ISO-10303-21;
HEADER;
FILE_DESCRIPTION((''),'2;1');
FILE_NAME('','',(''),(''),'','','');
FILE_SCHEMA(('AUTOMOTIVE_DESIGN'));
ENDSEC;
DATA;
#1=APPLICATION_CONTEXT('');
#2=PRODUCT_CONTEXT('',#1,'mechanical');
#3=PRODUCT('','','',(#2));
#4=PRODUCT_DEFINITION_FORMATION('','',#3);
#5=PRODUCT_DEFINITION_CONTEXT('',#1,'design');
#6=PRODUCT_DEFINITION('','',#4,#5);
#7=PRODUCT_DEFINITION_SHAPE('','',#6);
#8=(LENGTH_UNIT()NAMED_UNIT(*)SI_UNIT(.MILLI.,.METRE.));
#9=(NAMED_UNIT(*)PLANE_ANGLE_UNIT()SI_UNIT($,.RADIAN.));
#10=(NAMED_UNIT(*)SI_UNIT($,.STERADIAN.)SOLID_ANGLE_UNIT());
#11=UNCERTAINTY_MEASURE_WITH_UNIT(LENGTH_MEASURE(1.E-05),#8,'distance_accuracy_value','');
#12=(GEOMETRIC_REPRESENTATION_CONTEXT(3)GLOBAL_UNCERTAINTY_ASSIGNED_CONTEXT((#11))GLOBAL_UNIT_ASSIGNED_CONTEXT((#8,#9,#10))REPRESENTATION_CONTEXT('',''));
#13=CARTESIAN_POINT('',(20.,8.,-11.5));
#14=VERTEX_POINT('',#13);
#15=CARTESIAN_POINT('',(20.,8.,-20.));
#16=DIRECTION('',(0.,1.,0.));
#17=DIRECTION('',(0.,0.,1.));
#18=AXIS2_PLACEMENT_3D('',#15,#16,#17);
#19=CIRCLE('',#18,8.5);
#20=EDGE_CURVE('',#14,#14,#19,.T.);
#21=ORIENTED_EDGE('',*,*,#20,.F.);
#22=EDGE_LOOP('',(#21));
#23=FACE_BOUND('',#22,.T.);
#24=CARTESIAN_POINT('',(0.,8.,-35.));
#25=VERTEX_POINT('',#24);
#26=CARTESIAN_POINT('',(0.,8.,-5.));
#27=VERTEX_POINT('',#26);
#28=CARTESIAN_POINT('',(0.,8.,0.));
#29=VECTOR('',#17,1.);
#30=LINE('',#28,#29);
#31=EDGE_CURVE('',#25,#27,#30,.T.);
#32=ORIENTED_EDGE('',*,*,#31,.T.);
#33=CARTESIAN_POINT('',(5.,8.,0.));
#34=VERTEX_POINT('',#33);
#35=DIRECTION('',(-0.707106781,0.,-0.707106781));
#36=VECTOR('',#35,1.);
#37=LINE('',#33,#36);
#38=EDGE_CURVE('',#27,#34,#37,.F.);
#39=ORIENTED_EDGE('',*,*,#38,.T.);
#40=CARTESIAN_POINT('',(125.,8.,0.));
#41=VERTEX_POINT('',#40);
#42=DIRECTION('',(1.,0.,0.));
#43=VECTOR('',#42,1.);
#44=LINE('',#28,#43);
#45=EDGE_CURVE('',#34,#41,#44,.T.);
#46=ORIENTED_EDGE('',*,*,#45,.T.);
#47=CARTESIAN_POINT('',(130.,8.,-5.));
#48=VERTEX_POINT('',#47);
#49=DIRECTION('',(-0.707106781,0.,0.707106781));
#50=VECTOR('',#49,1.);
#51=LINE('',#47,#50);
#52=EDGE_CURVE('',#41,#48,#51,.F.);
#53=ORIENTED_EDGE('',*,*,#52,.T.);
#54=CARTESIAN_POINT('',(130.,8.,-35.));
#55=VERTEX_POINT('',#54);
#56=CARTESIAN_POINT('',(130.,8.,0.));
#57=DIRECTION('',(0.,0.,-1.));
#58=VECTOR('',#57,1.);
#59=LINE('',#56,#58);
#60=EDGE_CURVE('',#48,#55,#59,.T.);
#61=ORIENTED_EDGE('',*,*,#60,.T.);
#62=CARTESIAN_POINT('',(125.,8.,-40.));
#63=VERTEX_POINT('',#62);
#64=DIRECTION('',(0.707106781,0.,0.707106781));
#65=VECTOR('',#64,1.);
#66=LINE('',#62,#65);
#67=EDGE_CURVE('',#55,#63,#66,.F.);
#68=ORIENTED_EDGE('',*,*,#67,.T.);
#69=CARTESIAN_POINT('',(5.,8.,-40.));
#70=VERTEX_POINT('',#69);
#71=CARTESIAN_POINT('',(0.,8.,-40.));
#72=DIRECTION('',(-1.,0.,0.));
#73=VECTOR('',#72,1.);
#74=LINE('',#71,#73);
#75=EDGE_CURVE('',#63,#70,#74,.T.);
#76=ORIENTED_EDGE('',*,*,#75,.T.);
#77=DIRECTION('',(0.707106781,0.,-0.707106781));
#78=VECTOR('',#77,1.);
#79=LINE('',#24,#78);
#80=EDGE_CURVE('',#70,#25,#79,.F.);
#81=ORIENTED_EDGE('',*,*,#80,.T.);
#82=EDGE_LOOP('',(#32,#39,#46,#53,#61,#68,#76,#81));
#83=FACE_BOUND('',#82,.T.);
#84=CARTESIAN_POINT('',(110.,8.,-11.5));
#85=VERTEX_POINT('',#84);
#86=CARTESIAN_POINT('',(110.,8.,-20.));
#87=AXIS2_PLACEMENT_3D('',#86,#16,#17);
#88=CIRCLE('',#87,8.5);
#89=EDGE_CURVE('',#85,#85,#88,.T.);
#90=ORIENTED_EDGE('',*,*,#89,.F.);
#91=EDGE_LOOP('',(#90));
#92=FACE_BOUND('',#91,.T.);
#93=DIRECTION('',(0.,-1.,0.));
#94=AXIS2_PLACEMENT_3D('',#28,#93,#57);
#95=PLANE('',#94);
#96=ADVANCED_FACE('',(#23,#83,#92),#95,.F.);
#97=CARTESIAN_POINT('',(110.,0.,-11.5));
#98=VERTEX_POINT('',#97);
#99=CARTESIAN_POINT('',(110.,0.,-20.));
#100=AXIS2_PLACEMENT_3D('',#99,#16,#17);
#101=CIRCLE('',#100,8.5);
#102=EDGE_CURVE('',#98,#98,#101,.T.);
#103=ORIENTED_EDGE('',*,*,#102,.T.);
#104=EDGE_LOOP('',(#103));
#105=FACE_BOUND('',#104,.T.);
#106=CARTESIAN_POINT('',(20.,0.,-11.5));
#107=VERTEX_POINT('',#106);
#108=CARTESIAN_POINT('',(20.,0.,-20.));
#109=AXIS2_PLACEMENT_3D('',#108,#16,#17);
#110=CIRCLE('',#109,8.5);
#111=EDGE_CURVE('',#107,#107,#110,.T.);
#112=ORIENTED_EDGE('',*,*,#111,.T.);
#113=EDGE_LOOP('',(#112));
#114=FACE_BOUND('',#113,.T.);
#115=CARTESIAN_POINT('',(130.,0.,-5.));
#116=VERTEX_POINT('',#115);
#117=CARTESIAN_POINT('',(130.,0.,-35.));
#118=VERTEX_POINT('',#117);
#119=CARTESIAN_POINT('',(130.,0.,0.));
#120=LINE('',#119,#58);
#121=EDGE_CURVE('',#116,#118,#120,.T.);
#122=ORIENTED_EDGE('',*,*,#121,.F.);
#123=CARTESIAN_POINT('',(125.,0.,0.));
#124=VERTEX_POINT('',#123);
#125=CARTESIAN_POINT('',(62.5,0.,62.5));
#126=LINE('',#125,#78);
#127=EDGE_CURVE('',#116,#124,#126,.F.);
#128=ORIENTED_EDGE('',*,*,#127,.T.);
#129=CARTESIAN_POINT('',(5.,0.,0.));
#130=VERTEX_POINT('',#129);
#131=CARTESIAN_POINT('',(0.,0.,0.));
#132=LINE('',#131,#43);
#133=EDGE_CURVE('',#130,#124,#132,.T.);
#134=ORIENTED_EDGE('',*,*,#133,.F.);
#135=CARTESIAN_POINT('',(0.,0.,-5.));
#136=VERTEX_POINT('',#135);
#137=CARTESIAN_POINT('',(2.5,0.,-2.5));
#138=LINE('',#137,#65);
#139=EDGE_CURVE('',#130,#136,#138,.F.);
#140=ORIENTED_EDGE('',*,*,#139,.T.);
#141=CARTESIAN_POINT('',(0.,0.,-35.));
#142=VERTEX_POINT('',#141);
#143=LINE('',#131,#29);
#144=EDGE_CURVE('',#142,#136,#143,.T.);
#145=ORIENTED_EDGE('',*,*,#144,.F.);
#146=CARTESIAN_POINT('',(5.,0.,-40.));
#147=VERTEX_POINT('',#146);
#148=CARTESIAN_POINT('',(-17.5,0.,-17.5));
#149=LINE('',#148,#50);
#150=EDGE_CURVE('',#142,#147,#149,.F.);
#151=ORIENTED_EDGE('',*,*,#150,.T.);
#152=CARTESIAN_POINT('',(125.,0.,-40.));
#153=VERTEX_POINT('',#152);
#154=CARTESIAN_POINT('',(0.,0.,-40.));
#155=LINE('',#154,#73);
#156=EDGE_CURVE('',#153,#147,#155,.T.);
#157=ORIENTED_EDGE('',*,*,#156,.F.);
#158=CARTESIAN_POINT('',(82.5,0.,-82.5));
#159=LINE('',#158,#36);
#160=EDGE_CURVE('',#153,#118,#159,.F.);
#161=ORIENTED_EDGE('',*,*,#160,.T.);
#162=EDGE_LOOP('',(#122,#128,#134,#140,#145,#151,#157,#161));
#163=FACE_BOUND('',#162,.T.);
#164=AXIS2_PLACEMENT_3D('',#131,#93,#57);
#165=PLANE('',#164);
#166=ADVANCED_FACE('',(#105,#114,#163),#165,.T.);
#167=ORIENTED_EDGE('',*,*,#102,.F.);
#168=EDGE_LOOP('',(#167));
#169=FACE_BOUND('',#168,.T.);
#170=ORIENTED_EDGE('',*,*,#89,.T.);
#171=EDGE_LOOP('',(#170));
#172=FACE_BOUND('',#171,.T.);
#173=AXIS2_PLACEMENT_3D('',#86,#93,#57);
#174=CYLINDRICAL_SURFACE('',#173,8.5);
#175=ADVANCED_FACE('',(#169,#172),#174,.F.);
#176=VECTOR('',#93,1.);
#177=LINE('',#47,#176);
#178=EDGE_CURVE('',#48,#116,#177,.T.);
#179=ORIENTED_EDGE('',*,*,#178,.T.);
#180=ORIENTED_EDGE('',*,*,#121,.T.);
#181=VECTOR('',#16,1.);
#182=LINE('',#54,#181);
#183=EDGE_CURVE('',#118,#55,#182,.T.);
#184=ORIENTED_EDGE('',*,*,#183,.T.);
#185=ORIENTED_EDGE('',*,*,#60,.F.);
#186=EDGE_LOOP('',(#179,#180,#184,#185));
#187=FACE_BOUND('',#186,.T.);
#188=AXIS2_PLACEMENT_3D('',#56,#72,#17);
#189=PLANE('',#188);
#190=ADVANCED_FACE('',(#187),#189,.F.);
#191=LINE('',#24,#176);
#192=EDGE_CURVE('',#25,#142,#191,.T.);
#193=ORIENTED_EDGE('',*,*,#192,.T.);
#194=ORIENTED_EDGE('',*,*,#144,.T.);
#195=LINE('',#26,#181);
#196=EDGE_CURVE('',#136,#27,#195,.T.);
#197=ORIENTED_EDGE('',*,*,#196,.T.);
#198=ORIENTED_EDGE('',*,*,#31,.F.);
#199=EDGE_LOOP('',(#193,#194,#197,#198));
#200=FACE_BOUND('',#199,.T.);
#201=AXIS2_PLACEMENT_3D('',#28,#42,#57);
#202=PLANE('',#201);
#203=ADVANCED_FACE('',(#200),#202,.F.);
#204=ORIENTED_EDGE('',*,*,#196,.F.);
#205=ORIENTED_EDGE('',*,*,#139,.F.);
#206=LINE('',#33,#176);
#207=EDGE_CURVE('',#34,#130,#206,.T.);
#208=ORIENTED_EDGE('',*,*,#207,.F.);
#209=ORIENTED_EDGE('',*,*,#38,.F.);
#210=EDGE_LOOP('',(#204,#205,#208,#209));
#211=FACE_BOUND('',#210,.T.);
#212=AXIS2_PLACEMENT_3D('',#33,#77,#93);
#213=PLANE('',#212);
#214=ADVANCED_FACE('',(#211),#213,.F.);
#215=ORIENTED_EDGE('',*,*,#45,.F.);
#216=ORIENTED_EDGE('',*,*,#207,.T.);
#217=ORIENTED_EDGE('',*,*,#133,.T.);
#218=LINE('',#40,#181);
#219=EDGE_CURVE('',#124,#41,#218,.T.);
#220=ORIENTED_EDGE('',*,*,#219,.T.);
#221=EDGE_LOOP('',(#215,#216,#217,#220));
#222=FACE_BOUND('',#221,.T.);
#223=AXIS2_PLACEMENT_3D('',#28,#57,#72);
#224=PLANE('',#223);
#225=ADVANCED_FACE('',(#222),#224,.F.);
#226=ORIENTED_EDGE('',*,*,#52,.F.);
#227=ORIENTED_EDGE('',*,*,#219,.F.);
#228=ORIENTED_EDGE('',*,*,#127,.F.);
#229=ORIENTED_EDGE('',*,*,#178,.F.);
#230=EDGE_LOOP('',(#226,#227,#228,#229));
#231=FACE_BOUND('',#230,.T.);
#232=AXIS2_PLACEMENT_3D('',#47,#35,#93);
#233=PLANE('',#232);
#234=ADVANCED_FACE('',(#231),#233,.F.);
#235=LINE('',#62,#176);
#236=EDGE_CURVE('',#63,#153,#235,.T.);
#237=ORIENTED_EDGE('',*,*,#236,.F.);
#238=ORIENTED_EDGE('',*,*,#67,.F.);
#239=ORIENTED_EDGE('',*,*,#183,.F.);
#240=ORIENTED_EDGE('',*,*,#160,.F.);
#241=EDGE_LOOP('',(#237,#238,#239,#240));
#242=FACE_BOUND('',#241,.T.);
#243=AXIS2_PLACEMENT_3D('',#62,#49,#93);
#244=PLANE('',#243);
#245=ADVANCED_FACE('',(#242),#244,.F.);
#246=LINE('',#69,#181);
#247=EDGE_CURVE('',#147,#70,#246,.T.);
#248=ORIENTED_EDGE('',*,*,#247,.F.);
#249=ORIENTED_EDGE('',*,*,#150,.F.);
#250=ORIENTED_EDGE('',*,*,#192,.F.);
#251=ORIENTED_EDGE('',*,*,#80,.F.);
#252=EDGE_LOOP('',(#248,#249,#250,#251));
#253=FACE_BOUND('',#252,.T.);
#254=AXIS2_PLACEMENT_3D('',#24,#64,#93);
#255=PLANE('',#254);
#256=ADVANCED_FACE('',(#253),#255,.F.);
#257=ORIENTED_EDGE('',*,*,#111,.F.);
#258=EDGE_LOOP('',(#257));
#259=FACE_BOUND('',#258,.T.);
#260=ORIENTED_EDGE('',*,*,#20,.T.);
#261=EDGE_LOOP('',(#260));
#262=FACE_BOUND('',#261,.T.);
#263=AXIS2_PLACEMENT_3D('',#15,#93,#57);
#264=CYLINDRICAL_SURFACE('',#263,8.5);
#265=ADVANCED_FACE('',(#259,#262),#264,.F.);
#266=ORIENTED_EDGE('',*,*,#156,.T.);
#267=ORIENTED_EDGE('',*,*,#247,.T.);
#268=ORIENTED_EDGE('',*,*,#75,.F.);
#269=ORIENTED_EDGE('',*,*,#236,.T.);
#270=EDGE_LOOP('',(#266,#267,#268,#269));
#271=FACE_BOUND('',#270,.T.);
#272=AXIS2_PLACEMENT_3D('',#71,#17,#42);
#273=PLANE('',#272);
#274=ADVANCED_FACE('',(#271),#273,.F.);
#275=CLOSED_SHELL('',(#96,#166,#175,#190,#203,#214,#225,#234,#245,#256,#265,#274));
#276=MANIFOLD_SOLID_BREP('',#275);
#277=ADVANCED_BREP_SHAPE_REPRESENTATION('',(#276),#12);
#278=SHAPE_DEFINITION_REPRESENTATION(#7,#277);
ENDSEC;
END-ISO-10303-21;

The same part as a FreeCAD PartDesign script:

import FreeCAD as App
import Part
import Sketcher

V = App.Vector


def edges_at(feature, points):
    """Names of the edges that pass closest to the given points."""
    edges = feature.Shape.Edges
    near = lambda p: min(range(len(edges)), key=lambda i: edges[i].distToShape(Part.Vertex(*p))[0])
    return sorted({f"Edge{near(p) + 1}" for p in points})


def add_polygon(sketch, points):
    """Adds a closed chain of lines whose ends are joined by coincident constraints."""
    first, n = sketch.GeometryCount, len(points)
    for a, b in zip(points, points[1:] + points[:1]):
        sketch.addGeometry(Part.LineSegment(App.Vector(*a, 0), App.Vector(*b, 0)), False)
    for i in range(n):
        sketch.addConstraint(Sketcher.Constraint("Coincident", first + i, 2, first + (i + 1) % n, 1))

doc = App.newDocument("Part")
body = doc.addObject("PartDesign::Body", "Body")

sketch1 = body.newObject("Sketcher::SketchObject", "Sketch")
sketch1.AttachmentSupport = (doc.getObject("XZ_Plane"), [""])
sketch1.MapMode = "FlatFace"
add_polygon(sketch1, [(0, -40), (0, 0), (130, 0), (130, -40)])
sketch1.addGeometry(Part.Circle(V(20, -20, 0), V(0, 0, 1), 8), False)
sketch1.addGeometry(Part.Circle(V(110, -20, 0), V(0, 0, 1), 8), False)
sketch1.addConstraint([
    Sketcher.Constraint("Vertical", 0),
    Sketcher.Constraint("Horizontal", 1),
    Sketcher.Constraint("Vertical", 2),
    Sketcher.Constraint("Horizontal", 3),
    Sketcher.Constraint("Coincident", 0, 2, -1, 1),
    Sketcher.Constraint("Equal", 4, 5),
    Sketcher.Constraint("Horizontal", 4, 3, 5, 3),
    Sketcher.Constraint("Diameter", 4, 17.0),
    Sketcher.Constraint("DistanceX", 1, 1, 1, 2, 130.0),
    Sketcher.Constraint("DistanceY", 0, 1, 0, 2, 40.0),
    Sketcher.Constraint("DistanceX", -1, 1, 4, 3, 20.0),
    Sketcher.Constraint("DistanceY", 4, 3, -1, 1, 20.0),
    Sketcher.Constraint("DistanceX", -1, 1, 5, 3, 110.0),
])
pad1 = body.newObject("PartDesign::Pad", "Pad")
pad1.Profile = sketch1
pad1.Length = 8
pad1.Reversed = True
doc.recompute()

chamfer = body.newObject("PartDesign::Chamfer", "Chamfer")
chamfer.Base = (pad1, edges_at(pad1, [
    (0, 4, -40),
    (130, 4, -40),
    (130, 4, 0),
    (0, 4, 0),
]))
chamfer.Size = 5

doc.recompute()
